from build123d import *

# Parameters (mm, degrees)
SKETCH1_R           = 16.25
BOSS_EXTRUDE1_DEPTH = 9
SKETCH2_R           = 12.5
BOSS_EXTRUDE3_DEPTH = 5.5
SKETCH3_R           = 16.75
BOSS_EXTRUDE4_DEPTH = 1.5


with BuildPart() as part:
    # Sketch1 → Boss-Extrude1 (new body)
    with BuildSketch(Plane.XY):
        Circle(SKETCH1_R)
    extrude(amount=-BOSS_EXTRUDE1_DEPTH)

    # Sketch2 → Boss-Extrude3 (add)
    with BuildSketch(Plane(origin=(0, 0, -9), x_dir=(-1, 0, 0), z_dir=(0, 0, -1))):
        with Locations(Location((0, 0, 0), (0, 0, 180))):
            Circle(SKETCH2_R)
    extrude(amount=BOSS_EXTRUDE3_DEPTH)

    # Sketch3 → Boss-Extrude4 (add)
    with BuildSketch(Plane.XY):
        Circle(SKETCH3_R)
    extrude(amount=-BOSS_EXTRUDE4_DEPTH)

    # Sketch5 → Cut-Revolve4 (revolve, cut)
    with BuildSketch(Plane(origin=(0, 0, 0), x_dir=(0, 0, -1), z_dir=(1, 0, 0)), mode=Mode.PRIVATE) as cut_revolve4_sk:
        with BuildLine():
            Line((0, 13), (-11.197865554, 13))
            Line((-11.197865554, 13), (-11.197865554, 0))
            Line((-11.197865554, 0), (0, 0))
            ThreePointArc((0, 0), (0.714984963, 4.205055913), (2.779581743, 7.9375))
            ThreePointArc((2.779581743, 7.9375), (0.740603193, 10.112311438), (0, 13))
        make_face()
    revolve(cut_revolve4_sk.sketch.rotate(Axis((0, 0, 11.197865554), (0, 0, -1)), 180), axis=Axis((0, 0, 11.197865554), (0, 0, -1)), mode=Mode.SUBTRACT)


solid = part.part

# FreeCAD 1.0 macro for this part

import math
import FreeCAD as App
import Part
import Sketcher

doc = App.newDocument("Part")
body = doc.addObject("PartDesign::Body", "Body")

# Sketch on XY plane
sketch1 = doc.addObject("Sketcher::SketchObject", "Sketch")
body.addObject(sketch1)
sketch1.AttachmentSupport = (doc.XY_Plane, [""])
sketch1.MapMode = "FlatFace"
sketch1.addGeometry(Part.Circle(App.Vector(0, 0, 0), App.Vector(0, 0, 1), 16), False)
sketch1.addConstraint([
    Sketcher.Constraint("Coincident", 0, 3, -1, 1),
    Sketcher.Constraint("Diameter", 0, 32.5),
])
pad1 = doc.addObject("PartDesign::Pad", "Pad")
body.addObject(pad1)
pad1.Profile = sketch1
pad1.Length = 9
pad1.Reversed = True

# Sketch on XY plane
sketch2 = doc.addObject("Sketcher::SketchObject", "Sketch001")
body.addObject(sketch2)
sketch2.AttachmentSupport = (doc.XY_Plane, [""])
sketch2.MapMode = "FlatFace"
sketch2.AttachmentOffset = App.Placement(App.Vector(0, 0, -9), App.Rotation())
sketch2.addGeometry(Part.Circle(App.Vector(0, 0, 0), App.Vector(0, 0, 1), 12), False)
sketch2.addConstraint([
    Sketcher.Constraint("Coincident", 0, 3, -1, 1),
    Sketcher.Constraint("Diameter", 0, 25.0),
])
pad2 = doc.addObject("PartDesign::Pad", "Pad001")
body.addObject(pad2)
pad2.Profile = sketch2
pad2.Length = 5.5
pad2.Reversed = True

# Sketch on XY plane
sketch3 = doc.addObject("Sketcher::SketchObject", "Sketch002")
body.addObject(sketch3)
sketch3.AttachmentSupport = (doc.XY_Plane, [""])
sketch3.MapMode = "FlatFace"
sketch3.addGeometry(Part.Circle(App.Vector(0, 0, 0), App.Vector(0, 0, 1), 17), False)
sketch3.addConstraint([
    Sketcher.Constraint("Coincident", 0, 3, -1, 1),
    Sketcher.Constraint("Diameter", 0, 33.5),
])
pad3 = doc.addObject("PartDesign::Pad", "Pad002")
body.addObject(pad3)
pad3.Profile = sketch3
pad3.Length = 1.5
pad3.Reversed = True

# Sketch on YZ plane
sketch4 = doc.addObject("Sketcher::SketchObject", "Sketch003")
body.addObject(sketch4)
sketch4.AttachmentSupport = (doc.YZ_Plane, [""])
sketch4.MapMode = "FlatFace"
sketch4.addGeometry([
    Part.LineSegment(App.Vector(13, 0, 0), App.Vector(13, 11, 0)),  # 0
    Part.LineSegment(App.Vector(13, 11, 0), App.Vector(0, 11, 0)),  # 1
    Part.LineSegment(App.Vector(0, 11, 0), App.Vector(0, 0, 0)),  # 2
    Part.ArcOfCircle(Part.Circle(App.Vector(0, -13, 0), App.Vector(0, 0, 1), 13), math.radians(51), math.radians(90)),  # 3
    Part.ArcOfCircle(Part.Circle(App.Vector(13, -6, 0), App.Vector(0, 0, 1), 6), math.radians(90), math.radians(148)),  # 4
], False)
sketch4.addConstraint([
    Sketcher.Constraint("Coincident", 0, 2, 1, 1),
    Sketcher.Constraint("Coincident", 1, 2, 2, 1),
    Sketcher.Constraint("Coincident", 2, 2, 3, 2),
    Sketcher.Constraint("Coincident", 3, 1, 4, 2),
    Sketcher.Constraint("Coincident", 4, 1, 0, 1),
    Sketcher.Constraint("Vertical", 0),
    Sketcher.Constraint("Horizontal", 1),
    Sketcher.Constraint("Vertical", 2),
    Sketcher.Constraint("Coincident", 2, 2, -1, 1),
    Sketcher.Constraint("PointOnObject", 3, 3, -2),
    Sketcher.Constraint("PointOnObject", 4, 1, -1),
    Sketcher.Constraint("Vertical", 4, 3, 0, 2),
    Sketcher.Constraint("Radius", 4, 6.0),
    Sketcher.Constraint("DistanceX", 1, 2, 1, 1, 13.0),
    Sketcher.Constraint("Radius", 3, 12.723134),
    Sketcher.Constraint("DistanceY", 3, 3, 0, 2, 23.920999),
])
groove = doc.addObject("PartDesign::Groove", "Groove")
body.addObject(groove)
groove.Profile = sketch4
groove.ReferenceAxis = (sketch4, ["V_Axis"])
groove.Angle = 360

doc.recompute()
